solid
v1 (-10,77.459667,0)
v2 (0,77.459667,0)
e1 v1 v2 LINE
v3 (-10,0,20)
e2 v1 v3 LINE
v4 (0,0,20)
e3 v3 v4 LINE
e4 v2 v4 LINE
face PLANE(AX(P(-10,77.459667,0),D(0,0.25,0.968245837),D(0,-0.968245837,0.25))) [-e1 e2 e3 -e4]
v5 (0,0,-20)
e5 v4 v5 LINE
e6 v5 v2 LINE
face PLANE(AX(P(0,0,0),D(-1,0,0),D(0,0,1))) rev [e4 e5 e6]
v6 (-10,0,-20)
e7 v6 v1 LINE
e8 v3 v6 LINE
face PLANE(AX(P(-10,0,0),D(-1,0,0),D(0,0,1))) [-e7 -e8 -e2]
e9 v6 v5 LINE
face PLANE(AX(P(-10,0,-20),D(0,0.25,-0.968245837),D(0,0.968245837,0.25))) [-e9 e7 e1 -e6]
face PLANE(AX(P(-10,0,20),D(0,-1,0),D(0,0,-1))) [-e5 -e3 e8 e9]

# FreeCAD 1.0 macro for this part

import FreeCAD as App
import Part
import Sketcher
Q = App.Units.Quantity

doc = App.newDocument("Part")
params = doc.addObject("Spreadsheet::Sheet", "Params")
for row, (alias, value) in enumerate([
    ("sketch1_height", "40 mm"),
    ("sketch1_length", "80 mm"),
    ("pad1_length", "10 mm"),
], start=1):
    params.set(f"A{row}", alias)
    params.set(f"B{row}", "=" + value)
    params.setAlias(f"B{row}", alias)

body = doc.addObject("PartDesign::Body", "Body")

# Sketch on YZ plane
sketch1 = body.newObject("Sketcher::SketchObject", "Sketch")
sketch1.AttachmentSupport = (doc.getObject("YZ_Plane"), [""])
sketch1.MapMode = "FlatFace"
sketch1.addGeometry([
    Part.LineSegment(App.Vector(77, 0, 0), App.Vector(0, 20, 0)),
    Part.LineSegment(App.Vector(0, 20, 0), App.Vector(0, -20, 0)),
    Part.LineSegment(App.Vector(0, -20, 0), App.Vector(77, 0, 0)),
], False)
sketch1.addConstraint([
    Sketcher.Constraint("Coincident", 0, 2, 1, 1),
    Sketcher.Constraint("Coincident", 1, 2, 2, 1),
    Sketcher.Constraint("Coincident", 2, 2, 0, 1),
    Sketcher.Constraint("Vertical", 1),
    Sketcher.Constraint("Symmetric", 0, 2, 1, 2, -1, 1),
    Sketcher.Constraint("PointOnObject", 2, 2, -1),
    Sketcher.Constraint("DistanceY", 1, 2, 1, 1, Q("40 mm")),
    Sketcher.Constraint("Distance", 0, Q("80 mm")),
])
sketch1.setExpression("Constraints[6]", "Params.sketch1_height")
sketch1.setExpression("Constraints[7]", "Params.sketch1_length")
pad1 = body.newObject("PartDesign::Pad", "Pad")
pad1.Profile = sketch1
pad1.setExpression("Length", "Params.pad1_length")
pad1.Reversed = True

doc.recompute()
